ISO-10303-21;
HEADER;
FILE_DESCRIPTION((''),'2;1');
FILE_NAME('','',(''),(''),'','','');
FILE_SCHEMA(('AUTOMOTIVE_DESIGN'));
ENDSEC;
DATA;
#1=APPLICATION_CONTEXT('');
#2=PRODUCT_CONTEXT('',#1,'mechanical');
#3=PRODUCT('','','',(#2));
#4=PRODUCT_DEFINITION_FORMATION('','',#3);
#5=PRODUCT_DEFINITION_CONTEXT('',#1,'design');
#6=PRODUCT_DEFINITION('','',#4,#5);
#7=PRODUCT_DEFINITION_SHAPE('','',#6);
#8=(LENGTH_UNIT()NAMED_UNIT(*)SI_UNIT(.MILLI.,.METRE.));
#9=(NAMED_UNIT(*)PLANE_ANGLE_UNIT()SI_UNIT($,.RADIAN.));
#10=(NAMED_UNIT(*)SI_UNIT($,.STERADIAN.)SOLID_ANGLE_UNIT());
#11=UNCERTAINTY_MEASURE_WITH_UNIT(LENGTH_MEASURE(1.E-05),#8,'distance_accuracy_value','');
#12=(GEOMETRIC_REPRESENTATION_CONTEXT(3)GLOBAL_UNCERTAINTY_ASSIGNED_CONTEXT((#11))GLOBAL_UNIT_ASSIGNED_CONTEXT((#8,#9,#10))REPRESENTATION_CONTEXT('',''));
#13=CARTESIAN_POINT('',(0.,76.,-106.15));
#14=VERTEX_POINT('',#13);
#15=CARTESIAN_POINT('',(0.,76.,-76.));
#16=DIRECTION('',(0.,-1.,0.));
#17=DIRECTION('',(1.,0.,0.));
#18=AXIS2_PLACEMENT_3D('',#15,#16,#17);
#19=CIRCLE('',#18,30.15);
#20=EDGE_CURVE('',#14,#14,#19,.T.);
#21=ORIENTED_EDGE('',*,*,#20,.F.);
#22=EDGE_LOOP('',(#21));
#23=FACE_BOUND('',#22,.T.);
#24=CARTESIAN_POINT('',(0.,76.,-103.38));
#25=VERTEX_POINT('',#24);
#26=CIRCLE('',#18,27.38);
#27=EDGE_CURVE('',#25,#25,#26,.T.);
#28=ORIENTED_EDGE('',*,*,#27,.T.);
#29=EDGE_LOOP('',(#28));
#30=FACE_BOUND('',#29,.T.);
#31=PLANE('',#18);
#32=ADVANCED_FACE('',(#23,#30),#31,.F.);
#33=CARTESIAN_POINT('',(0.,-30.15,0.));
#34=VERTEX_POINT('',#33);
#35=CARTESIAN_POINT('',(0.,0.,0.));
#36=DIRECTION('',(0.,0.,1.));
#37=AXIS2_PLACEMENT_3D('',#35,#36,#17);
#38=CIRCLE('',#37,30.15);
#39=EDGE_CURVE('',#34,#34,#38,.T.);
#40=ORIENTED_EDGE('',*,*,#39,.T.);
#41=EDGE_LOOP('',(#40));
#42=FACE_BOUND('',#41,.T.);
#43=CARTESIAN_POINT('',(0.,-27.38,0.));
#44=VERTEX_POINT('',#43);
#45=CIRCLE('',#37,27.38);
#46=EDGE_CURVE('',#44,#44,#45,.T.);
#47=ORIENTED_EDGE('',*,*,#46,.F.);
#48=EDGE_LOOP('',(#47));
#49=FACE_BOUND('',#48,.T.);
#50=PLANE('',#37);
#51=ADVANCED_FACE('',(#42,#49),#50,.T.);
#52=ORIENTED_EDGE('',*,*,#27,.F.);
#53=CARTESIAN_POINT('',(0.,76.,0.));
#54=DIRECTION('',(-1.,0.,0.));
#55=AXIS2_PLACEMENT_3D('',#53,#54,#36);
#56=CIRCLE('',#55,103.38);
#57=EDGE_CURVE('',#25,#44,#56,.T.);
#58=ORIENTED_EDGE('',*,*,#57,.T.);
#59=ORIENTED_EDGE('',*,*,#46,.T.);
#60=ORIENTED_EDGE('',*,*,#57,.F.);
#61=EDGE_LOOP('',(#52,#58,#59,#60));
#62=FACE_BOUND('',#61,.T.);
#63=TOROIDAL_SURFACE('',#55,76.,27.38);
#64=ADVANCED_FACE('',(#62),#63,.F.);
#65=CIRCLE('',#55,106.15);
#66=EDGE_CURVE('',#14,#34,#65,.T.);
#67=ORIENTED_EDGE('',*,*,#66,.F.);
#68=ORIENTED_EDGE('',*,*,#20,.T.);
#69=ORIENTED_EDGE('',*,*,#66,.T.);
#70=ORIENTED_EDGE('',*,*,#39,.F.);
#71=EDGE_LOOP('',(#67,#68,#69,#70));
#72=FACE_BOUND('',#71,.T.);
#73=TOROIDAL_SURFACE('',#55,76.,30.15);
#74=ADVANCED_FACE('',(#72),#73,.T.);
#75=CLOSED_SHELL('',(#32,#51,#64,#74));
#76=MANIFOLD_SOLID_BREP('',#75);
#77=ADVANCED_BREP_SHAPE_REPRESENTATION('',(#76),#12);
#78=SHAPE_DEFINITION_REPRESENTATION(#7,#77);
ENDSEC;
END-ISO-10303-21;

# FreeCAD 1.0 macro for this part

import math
import FreeCAD as App
import Part
import Sketcher

doc = App.newDocument("Part")
body = doc.addObject("PartDesign::Body", "Body")

# Sketch on XY plane
sketch1 = doc.addObject("Sketcher::SketchObject", "Sketch")
body.addObject(sketch1)
sketch1.AttachmentSupport = (doc.XY_Plane, [""])
sketch1.MapMode = "FlatFace"
sketch1.addGeometry(Part.Circle(App.Vector(0, 0, 0), App.Vector(0, 0, 1), 30), False)
sketch1.addGeometry(Part.Circle(App.Vector(0, 0, 0), App.Vector(0, 0, 1), 27), False)
sketch1.addConstraint(Sketcher.Constraint("Coincident", 0, 3, -1, 1))
sketch1.addConstraint(Sketcher.Constraint("Coincident", 1, 3, -1, 1))
sketch1.addConstraint(Sketcher.Constraint("Diameter", 0, 60.3))
sketch1.addConstraint(Sketcher.Constraint("Diameter", 1, 54.76))

# Sketch on YZ plane
sketch2 = doc.addObject("Sketcher::SketchObject", "Sketch001")
body.addObject(sketch2)
sketch2.AttachmentSupport = (doc.YZ_Plane, [""])
sketch2.MapMode = "FlatFace"
sketch2.addGeometry(Part.ArcOfCircle(Part.Circle(App.Vector(76, 0, 0), App.Vector(0, 0, 1), 76), math.radians(-180), math.radians(-90)), False)
sketch2.addConstraint(Sketcher.Constraint("Coincident", 0, 1, -1, 1))
sketch2.addConstraint(Sketcher.Constraint("PointOnObject", 0, 3, -1))
sketch2.addConstraint(Sketcher.Constraint("Radius", 0, 76.0))
sketch2.addConstraint(Sketcher.Constraint("DistanceX", -1, 1, 0, 2, 76.0))
doc.recompute()

additivepipe = doc.addObject("PartDesign::AdditivePipe", "AdditivePipe")
body.addObject(additivepipe)
additivepipe.Profile = sketch1
additivepipe.Spine = (sketch2, ["Edge1"])

doc.recompute()
